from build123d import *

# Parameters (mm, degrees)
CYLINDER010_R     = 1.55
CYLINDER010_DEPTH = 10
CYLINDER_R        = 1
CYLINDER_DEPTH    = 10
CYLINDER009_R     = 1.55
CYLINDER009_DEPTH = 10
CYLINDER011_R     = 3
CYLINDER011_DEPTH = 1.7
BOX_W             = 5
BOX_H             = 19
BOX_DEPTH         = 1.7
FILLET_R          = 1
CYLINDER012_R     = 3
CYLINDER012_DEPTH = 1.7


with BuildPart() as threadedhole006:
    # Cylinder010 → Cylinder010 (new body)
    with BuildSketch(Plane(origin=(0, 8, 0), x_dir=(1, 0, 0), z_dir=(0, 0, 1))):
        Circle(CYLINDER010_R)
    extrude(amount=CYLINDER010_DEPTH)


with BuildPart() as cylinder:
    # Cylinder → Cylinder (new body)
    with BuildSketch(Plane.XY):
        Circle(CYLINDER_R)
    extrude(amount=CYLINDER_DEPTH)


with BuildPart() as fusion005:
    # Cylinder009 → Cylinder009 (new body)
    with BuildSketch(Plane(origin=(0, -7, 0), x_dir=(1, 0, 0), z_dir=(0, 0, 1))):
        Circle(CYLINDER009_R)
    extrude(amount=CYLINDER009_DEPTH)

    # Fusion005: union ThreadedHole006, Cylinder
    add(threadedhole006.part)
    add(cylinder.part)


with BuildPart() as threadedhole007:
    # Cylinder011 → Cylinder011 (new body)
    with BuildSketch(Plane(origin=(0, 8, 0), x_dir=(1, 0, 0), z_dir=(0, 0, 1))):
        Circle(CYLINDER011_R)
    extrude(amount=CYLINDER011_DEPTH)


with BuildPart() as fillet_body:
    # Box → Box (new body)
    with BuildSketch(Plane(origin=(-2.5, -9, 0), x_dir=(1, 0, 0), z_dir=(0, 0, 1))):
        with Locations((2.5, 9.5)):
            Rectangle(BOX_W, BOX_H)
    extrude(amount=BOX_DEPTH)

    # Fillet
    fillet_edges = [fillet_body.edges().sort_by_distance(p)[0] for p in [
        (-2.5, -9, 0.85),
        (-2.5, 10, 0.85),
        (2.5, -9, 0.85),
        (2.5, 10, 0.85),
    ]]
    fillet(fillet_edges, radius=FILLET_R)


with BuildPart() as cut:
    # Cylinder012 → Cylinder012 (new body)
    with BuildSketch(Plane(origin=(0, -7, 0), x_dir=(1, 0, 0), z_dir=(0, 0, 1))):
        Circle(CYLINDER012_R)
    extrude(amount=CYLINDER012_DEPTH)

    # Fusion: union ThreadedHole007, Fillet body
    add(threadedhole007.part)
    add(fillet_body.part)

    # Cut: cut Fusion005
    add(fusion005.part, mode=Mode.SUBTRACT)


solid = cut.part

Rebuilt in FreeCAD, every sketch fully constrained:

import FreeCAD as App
import Part
import Sketcher
Q = App.Units.Quantity


def edges_at(feature, points):
    """Names of the edges that pass closest to the given points."""
    edges = feature.Shape.Edges
    near = lambda p: min(range(len(edges)), key=lambda i: edges[i].distToShape(Part.Vertex(*p))[0])
    return sorted({f"Edge{near(p) + 1}" for p in points})

doc = App.newDocument("Part")
body = doc.addObject("PartDesign::Body", "Body")

sketch1 = body.newObject("Sketcher::SketchObject", "Sketch")
sketch1.AttachmentSupport = (doc.getObject("XY_Plane"), [""])
sketch1.MapMode = "FlatFace"
sketch1.addGeometry(Part.Circle(App.Vector(0, 8, 0), App.Vector(0, 0, 1), 1.6), False)
sketch1.addConstraint([
    Sketcher.Constraint("PointOnObject", 0, 3, -2),
    Sketcher.Constraint("Diameter", 0, Q("3.1 mm")),
    Sketcher.Constraint("DistanceY", -1, 1, 0, 3, Q("8 mm")),
])
pad1 = body.newObject("PartDesign::Pad", "Pad")
pad1.Profile = sketch1
pad1.Length = 10
body2 = doc.addObject("PartDesign::Body", "Body001")

sketch2 = body2.newObject("Sketcher::SketchObject", "Sketch001")
sketch2.AttachmentSupport = (doc.getObject("XY_Plane001"), [""])
sketch2.MapMode = "FlatFace"
sketch2.addGeometry(Part.Circle(App.Vector(0, 0, 0), App.Vector(0, 0, 1), 1), False)
sketch2.addConstraint([
    Sketcher.Constraint("Coincident", 0, 3, -1, 1),
    Sketcher.Constraint("Diameter", 0, Q("2 mm")),
])
pad2 = body2.newObject("PartDesign::Pad", "Pad001")
pad2.Profile = sketch2
pad2.Length = 10
body3 = doc.addObject("PartDesign::Body", "Body002")
body3.AllowCompound = True

sketch3 = body3.newObject("Sketcher::SketchObject", "Sketch002")
sketch3.AttachmentSupport = (doc.getObject("XY_Plane002"), [""])
sketch3.MapMode = "FlatFace"
sketch3.addGeometry(Part.Circle(App.Vector(0, -7, 0), App.Vector(0, 0, 1), 1.6), False)
sketch3.addConstraint([
    Sketcher.Constraint("PointOnObject", 0, 3, -2),
    Sketcher.Constraint("Diameter", 0, Q("3.1 mm")),
    Sketcher.Constraint("DistanceY", 0, 3, -1, 1, Q("7 mm")),
])
pad3 = body3.newObject("PartDesign::Pad", "Pad002")
pad3.Profile = sketch3
pad3.Length = 10
doc.recompute()

boolean = body3.newObject("PartDesign::Boolean", "Boolean")
boolean.Type = "Fuse"
boolean.addObjects([body])
doc.recompute()

boolean2 = body3.newObject("PartDesign::Boolean", "Boolean001")
boolean2.Type = "Fuse"
boolean2.addObjects([body2])
body4 = doc.addObject("PartDesign::Body", "Body003")

sketch4 = body4.newObject("Sketcher::SketchObject", "Sketch003")
sketch4.AttachmentSupport = (doc.getObject("XY_Plane003"), [""])
sketch4.MapMode = "FlatFace"
sketch4.addGeometry(Part.Circle(App.Vector(0, 8, 0), App.Vector(0, 0, 1), 3), False)
sketch4.addConstraint([
    Sketcher.Constraint("PointOnObject", 0, 3, -2),
    Sketcher.Constraint("Diameter", 0, Q("6 mm")),
    Sketcher.Constraint("DistanceY", -1, 1, 0, 3, Q("8 mm")),
])
pad4 = body4.newObject("PartDesign::Pad", "Pad003")
pad4.Profile = sketch4
pad4.Length = 1.7
body5 = doc.addObject("PartDesign::Body", "Body004")

sketch5 = body5.newObject("Sketcher::SketchObject", "Sketch004")
sketch5.AttachmentSupport = (doc.getObject("XY_Plane004"), [""])
sketch5.MapMode = "FlatFace"
sketch5.addGeometry([
    Part.LineSegment(App.Vector(-2, 10, 0), App.Vector(-2, -9, 0)),
    Part.LineSegment(App.Vector(-2, -9, 0), App.Vector(2, -9, 0)),
    Part.LineSegment(App.Vector(2, -9, 0), App.Vector(2, 10, 0)),
    Part.LineSegment(App.Vector(2, 10, 0), App.Vector(-2, 10, 0)),
], False)
sketch5.addConstraint([
    Sketcher.Constraint("Coincident", 0, 2, 1, 1),
    Sketcher.Constraint("Coincident", 1, 2, 2, 1),
    Sketcher.Constraint("Coincident", 2, 2, 3, 1),
    Sketcher.Constraint("Coincident", 3, 2, 0, 1),
    Sketcher.Constraint("Vertical", 0),
    Sketcher.Constraint("Horizontal", 1),
    Sketcher.Constraint("Vertical", 2),
    Sketcher.Constraint("Horizontal", 3),
    Sketcher.Constraint("DistanceX", 1, 1, 1, 2, Q("5 mm")),
    Sketcher.Constraint("DistanceY", 0, 2, 0, 1, Q("19 mm")),
    Sketcher.Constraint("DistanceY", 0, 2, -1, 1, Q("9 mm")),
    Sketcher.Constraint("DistanceX", 0, 2, -1, 1, Q("2.5 mm")),
])
pad5 = body5.newObject("PartDesign::Pad", "Pad004")
pad5.Profile = sketch5
pad5.Length = 1.7
doc.recompute()

fillet = body5.newObject("PartDesign::Fillet", "Fillet")
fillet.Base = (pad5, edges_at(pad5, [
    (-2.5, -9, 0.85),
    (-2.5, 10, 0.85),
    (2.5, -9, 0.85),
    (2.5, 10, 0.85),
]))
fillet.Radius = 1
body6 = doc.addObject("PartDesign::Body", "Body005")
body6.AllowCompound = True

sketch6 = body6.newObject("Sketcher::SketchObject", "Sketch005")
sketch6.AttachmentSupport = (doc.getObject("XY_Plane005"), [""])
sketch6.MapMode = "FlatFace"
sketch6.addGeometry(Part.Circle(App.Vector(0, -7, 0), App.Vector(0, 0, 1), 3), False)
sketch6.addConstraint([
    Sketcher.Constraint("PointOnObject", 0, 3, -2),
    Sketcher.Constraint("Diameter", 0, Q("6 mm")),
    Sketcher.Constraint("DistanceY", 0, 3, -1, 1, Q("7 mm")),
])
pad6 = body6.newObject("PartDesign::Pad", "Pad005")
pad6.Profile = sketch6
pad6.Length = 1.7
doc.recompute()

boolean3 = body6.newObject("PartDesign::Boolean", "Boolean002")
boolean3.Type = "Fuse"
boolean3.addObjects([body4])
doc.recompute()

boolean4 = body6.newObject("PartDesign::Boolean", "Boolean003")
boolean4.Type = "Fuse"
boolean4.addObjects([body5])
doc.recompute()

boolean5 = body6.newObject("PartDesign::Boolean", "Boolean004")
boolean5.Type = "Cut"
boolean5.addObjects([body3])

doc.recompute()
